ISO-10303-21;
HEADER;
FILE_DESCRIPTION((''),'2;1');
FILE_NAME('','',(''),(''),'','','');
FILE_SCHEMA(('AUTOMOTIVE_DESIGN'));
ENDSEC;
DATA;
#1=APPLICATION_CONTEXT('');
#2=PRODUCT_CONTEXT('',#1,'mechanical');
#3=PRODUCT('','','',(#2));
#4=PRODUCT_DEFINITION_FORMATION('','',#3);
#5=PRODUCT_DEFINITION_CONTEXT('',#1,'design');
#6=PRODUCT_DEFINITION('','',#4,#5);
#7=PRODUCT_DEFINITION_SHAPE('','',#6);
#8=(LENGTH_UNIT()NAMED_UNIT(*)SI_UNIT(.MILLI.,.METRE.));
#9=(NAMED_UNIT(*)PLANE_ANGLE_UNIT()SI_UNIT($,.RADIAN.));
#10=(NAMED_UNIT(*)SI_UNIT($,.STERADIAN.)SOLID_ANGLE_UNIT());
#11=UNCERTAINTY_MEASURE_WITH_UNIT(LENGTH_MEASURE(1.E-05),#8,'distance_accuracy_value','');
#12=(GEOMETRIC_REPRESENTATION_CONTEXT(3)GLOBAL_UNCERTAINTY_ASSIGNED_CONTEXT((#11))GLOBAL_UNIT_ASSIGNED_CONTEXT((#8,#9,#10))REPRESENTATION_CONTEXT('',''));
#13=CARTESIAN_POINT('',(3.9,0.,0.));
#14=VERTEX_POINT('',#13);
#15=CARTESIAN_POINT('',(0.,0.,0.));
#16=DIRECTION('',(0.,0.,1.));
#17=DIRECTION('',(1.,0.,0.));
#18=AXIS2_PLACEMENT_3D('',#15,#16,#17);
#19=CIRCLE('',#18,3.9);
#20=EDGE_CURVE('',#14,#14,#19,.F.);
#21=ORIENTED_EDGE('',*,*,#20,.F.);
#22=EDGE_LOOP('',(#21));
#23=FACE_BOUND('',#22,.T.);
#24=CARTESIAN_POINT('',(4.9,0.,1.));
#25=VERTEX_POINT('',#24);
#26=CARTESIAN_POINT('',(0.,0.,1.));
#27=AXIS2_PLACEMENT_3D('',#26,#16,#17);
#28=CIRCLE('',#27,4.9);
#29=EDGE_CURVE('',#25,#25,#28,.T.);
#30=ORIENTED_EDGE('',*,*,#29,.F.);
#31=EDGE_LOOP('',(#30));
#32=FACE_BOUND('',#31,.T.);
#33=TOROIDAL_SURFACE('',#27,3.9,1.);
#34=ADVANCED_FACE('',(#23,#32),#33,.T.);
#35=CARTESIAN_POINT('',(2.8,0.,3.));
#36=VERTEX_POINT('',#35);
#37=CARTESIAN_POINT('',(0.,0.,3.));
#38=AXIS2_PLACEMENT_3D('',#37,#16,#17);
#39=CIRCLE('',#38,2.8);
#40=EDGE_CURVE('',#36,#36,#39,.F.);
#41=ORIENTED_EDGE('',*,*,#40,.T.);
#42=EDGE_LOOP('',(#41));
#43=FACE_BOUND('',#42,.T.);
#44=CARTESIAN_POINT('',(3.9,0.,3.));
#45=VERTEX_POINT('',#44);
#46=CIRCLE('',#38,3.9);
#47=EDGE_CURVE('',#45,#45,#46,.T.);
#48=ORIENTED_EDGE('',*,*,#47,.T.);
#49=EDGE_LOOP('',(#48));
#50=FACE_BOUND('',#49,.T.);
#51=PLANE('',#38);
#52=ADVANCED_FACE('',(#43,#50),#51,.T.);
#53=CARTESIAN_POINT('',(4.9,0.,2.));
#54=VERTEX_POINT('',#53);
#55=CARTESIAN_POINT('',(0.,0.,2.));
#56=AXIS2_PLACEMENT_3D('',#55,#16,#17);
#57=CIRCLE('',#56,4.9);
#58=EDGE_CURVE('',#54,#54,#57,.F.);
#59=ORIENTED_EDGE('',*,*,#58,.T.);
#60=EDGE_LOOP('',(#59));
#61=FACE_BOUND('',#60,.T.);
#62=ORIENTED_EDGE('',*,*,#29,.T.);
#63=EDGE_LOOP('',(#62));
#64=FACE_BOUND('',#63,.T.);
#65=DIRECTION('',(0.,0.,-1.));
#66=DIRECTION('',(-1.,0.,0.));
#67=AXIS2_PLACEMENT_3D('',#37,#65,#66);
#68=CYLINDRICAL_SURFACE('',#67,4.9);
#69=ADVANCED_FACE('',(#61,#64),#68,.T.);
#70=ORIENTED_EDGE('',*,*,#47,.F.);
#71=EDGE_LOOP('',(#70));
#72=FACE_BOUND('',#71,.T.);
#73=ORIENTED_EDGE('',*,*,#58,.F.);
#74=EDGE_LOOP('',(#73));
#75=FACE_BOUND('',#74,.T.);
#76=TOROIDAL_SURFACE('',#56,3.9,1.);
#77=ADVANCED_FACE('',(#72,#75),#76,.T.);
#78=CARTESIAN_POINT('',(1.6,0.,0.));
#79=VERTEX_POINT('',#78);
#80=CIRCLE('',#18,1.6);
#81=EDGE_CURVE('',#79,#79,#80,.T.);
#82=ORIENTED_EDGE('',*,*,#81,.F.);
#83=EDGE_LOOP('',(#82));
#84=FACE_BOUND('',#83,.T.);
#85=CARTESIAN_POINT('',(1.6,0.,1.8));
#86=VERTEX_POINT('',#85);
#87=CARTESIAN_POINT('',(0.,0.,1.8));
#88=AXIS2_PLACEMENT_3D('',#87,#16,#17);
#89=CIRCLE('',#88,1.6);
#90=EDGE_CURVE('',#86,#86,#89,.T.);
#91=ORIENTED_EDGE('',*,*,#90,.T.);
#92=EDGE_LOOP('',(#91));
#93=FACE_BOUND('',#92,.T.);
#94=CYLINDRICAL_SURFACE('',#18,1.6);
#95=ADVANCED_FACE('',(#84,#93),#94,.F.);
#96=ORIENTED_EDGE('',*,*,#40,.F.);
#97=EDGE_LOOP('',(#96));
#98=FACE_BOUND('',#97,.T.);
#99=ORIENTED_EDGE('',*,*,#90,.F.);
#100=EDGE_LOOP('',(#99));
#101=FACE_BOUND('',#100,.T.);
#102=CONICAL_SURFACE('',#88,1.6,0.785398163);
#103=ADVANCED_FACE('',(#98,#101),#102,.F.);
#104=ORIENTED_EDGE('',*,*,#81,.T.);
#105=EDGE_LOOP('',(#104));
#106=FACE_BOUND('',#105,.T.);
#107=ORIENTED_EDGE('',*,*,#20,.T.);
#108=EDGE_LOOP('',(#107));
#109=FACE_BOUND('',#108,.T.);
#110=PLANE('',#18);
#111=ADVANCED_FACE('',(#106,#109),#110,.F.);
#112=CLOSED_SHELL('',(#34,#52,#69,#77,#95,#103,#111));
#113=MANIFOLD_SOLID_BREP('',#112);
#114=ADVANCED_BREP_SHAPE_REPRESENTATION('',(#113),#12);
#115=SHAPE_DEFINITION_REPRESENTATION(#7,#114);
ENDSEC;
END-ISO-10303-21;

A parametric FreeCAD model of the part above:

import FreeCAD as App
import Part
import Sketcher


def edges_at(feature, points):
    """Names of the edges that pass closest to the given points."""
    edges = feature.Shape.Edges
    near = lambda p: min(range(len(edges)), key=lambda i: edges[i].distToShape(Part.Vertex(*p))[0])
    return sorted({f"Edge{near(p) + 1}" for p in points})

doc = App.newDocument("Part")
body = doc.addObject("PartDesign::Body", "Body")

sketch1 = body.newObject("Sketcher::SketchObject", "Sketch")
sketch1.AttachmentSupport = (doc.getObject("XY_Plane"), [""])
sketch1.MapMode = "FlatFace"
sketch1.addGeometry(Part.Circle(App.Vector(0, 0, 0), App.Vector(0, 0, 1), 4.9), False)
sketch1.addConstraint(Sketcher.Constraint("Coincident", 0, 3, -1, 1))
sketch1.addConstraint(Sketcher.Constraint("Diameter", 0, 9.8))
pad1 = body.newObject("PartDesign::Pad", "Pad")
pad1.Profile = sketch1
pad1.Length = 3

sketch2 = body.newObject("Sketcher::SketchObject", "Sketch001")
sketch2.AttachmentSupport = (doc.getObject("XY_Plane"), [""])
sketch2.MapMode = "FlatFace"
sketch2.AttachmentOffset = App.Placement(App.Vector(0, 0, 3), App.Rotation())
sketch2.addGeometry(Part.Circle(App.Vector(0, 0, 0), App.Vector(0, 0, 1), 1.6), False)
sketch2.addConstraint(Sketcher.Constraint("Coincident", 0, 3, -1, 1))
sketch2.addConstraint(Sketcher.Constraint("Diameter", 0, 3.2))
pocket1 = body.newObject("PartDesign::Pocket", "Pocket")
pocket1.Profile = sketch2
pocket1.Type = "ThroughAll"
doc.recompute()

chamfer = body.newObject("PartDesign::Chamfer", "Chamfer")
chamfer.Base = (pocket1, edges_at(pocket1, [(-1.6, 0, 3)]))
chamfer.Size = 1.2
doc.recompute()

fillet = body.newObject("PartDesign::Fillet", "Fillet")
fillet.Base = (chamfer, edges_at(chamfer, [(-4.9, 0, 3)]))
fillet.Radius = 1
doc.recompute()

fillet2 = body.newObject("PartDesign::Fillet", "Fillet001")
fillet2.Base = (fillet, edges_at(fillet, [(-4.9, 0, 0)]))
fillet2.Radius = 1

doc.recompute()
